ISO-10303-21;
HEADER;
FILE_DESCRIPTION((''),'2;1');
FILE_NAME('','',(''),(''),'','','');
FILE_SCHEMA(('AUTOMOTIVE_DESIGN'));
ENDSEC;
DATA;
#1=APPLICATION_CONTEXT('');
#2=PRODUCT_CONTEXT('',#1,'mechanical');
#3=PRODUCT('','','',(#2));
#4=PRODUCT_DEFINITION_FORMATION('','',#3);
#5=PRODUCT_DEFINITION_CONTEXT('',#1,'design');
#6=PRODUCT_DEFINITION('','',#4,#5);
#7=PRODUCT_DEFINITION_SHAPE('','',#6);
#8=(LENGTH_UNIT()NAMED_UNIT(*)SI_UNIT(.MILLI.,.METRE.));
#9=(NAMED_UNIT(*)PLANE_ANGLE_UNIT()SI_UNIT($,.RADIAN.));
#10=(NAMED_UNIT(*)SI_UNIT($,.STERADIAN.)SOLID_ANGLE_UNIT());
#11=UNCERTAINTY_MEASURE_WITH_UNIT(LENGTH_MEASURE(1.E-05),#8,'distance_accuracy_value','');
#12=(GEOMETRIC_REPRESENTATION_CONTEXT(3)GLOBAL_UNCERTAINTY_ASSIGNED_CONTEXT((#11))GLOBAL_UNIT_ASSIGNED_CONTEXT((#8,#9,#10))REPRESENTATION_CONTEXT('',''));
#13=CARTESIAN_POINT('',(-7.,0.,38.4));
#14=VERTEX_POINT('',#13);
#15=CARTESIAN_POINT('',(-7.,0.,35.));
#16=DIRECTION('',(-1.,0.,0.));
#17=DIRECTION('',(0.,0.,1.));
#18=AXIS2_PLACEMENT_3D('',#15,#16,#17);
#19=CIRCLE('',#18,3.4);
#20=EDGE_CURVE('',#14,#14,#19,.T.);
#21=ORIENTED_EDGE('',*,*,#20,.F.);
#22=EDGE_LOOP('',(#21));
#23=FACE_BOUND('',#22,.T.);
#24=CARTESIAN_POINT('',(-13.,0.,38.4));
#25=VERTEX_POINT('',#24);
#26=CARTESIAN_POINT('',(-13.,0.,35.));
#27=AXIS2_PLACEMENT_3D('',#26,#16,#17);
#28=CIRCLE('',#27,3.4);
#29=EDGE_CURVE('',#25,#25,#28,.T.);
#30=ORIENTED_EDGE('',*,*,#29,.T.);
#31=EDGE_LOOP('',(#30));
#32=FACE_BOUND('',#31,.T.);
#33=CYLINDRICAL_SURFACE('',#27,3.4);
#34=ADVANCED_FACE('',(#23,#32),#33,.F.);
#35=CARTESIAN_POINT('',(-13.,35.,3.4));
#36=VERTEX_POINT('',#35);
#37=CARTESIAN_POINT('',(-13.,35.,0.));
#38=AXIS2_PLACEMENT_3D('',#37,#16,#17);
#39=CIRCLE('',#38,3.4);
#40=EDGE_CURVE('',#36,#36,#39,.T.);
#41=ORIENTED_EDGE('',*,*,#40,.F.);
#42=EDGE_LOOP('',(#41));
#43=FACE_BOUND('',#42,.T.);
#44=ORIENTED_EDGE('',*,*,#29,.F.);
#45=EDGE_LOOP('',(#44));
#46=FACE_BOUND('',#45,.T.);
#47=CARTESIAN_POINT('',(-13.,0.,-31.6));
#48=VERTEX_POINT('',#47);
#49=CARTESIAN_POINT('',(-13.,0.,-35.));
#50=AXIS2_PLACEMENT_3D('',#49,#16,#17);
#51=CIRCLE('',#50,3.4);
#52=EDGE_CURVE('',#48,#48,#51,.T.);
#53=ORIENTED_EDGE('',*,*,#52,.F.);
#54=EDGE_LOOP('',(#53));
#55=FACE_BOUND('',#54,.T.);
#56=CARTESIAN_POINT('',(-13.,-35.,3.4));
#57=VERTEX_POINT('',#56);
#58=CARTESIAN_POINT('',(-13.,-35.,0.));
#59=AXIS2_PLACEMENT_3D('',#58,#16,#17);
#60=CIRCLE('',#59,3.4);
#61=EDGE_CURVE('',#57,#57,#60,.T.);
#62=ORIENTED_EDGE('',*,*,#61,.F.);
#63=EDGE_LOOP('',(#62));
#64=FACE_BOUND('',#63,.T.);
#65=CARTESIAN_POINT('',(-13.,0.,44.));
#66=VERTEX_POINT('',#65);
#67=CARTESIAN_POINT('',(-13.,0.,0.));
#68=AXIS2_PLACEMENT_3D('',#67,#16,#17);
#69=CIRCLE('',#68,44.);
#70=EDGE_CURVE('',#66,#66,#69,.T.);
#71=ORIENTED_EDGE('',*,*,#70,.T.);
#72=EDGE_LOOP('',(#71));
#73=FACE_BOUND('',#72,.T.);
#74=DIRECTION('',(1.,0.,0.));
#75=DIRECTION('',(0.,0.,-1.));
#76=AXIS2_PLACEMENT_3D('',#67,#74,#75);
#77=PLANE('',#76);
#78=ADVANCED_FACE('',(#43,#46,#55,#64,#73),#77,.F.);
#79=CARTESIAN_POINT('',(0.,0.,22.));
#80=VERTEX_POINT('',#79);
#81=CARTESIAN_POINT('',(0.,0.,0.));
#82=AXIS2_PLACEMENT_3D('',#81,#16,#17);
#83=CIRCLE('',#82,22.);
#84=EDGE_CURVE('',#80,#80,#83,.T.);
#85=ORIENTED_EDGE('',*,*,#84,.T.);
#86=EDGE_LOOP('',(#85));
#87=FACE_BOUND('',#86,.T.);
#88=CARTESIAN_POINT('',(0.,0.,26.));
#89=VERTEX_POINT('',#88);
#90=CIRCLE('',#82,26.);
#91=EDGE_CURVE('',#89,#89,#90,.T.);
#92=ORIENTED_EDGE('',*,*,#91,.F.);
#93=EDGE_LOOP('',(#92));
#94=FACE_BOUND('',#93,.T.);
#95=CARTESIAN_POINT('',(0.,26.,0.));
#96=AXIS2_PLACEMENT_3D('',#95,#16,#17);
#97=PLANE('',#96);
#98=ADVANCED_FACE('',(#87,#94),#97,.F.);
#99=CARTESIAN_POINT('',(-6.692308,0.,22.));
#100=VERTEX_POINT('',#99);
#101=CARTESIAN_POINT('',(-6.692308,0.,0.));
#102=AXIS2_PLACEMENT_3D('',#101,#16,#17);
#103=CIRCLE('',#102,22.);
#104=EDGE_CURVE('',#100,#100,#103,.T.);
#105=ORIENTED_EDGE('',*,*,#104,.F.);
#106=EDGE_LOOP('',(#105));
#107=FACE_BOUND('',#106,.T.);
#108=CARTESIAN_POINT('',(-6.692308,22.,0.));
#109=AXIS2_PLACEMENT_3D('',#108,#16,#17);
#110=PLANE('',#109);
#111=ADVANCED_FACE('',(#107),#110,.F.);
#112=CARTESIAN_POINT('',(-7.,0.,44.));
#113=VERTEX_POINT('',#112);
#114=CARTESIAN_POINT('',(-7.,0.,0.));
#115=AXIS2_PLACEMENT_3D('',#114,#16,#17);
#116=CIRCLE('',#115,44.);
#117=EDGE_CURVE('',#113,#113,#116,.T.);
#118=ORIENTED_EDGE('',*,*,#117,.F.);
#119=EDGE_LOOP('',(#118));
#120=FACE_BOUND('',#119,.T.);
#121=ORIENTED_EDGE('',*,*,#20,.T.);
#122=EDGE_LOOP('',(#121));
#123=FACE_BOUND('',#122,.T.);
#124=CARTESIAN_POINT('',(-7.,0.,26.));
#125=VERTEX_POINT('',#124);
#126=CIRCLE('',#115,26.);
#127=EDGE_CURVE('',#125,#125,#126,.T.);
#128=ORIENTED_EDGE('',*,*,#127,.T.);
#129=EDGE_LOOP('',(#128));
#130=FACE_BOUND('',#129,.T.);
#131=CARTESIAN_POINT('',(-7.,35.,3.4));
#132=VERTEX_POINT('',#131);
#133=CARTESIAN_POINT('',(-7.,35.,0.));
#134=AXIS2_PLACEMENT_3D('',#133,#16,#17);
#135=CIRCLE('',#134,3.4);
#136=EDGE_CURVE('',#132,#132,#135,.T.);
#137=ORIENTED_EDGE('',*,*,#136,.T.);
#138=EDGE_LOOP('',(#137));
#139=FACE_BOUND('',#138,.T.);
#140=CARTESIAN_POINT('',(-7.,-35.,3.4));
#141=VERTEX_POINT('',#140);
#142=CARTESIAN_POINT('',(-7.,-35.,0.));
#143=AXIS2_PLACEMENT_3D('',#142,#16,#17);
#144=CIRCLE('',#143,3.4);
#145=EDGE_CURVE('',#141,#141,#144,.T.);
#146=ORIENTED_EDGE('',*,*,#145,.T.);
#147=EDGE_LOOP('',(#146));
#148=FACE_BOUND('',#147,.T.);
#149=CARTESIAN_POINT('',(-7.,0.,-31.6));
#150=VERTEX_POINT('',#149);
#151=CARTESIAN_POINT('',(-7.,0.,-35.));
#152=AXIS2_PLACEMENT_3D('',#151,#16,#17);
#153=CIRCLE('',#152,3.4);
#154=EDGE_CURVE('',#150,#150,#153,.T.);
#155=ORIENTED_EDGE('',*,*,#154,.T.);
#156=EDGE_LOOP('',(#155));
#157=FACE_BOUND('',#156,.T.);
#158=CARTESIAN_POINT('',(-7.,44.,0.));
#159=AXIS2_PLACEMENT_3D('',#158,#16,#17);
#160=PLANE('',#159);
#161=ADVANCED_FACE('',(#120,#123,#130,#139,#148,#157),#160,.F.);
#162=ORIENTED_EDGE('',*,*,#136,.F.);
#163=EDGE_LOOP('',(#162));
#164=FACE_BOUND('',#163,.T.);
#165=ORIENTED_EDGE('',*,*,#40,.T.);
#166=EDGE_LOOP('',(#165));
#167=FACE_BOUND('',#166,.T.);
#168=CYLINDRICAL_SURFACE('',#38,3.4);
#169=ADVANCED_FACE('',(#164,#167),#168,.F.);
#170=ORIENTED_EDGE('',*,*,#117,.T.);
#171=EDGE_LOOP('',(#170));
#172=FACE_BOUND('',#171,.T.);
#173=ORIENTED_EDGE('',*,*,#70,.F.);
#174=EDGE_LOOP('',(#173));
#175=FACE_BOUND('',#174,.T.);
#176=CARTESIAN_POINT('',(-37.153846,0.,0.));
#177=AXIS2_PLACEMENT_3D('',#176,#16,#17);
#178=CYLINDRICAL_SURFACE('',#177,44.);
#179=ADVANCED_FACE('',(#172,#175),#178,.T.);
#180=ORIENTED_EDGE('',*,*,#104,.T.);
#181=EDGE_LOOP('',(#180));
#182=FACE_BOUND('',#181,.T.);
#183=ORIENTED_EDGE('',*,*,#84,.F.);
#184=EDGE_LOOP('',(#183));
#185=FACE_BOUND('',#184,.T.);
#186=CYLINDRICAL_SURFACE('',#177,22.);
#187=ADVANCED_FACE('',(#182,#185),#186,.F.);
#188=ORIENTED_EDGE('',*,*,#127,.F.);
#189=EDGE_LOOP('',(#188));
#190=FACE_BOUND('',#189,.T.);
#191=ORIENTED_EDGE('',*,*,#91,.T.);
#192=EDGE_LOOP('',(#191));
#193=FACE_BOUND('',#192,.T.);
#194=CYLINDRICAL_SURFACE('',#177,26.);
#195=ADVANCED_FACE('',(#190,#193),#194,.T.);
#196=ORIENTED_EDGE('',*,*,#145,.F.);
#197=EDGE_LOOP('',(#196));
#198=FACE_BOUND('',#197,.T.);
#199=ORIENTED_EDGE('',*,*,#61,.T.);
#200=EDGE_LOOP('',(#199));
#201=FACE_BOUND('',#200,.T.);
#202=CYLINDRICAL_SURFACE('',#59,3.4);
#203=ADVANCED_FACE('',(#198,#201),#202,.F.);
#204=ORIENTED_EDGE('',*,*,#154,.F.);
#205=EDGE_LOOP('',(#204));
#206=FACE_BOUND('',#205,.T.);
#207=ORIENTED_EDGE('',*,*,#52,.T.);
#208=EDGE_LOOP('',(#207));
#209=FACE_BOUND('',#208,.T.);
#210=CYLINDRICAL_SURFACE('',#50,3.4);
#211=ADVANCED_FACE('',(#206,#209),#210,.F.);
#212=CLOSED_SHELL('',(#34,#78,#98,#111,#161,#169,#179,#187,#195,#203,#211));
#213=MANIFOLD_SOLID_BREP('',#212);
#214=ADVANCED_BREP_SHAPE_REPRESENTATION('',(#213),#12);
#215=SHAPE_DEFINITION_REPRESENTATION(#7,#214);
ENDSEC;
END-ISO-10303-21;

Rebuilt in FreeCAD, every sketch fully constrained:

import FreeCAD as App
import Part
import Sketcher
from FreeCAD import Vector
Q = App.Units.Quantity


def add_polygon(sketch, points):
    """Adds a closed chain of lines whose ends are joined by coincident constraints."""
    first, n = sketch.GeometryCount, len(points)
    for a, b in zip(points, points[1:] + points[:1]):
        sketch.addGeometry(Part.LineSegment(App.Vector(*a, 0), App.Vector(*b, 0)), False)
    for i in range(n):
        sketch.addConstraint(Sketcher.Constraint("Coincident", first + i, 2, first + (i + 1) % n, 1))

doc = App.newDocument("Part")
body = doc.addObject("PartDesign::Body", "Body")

# Sketch on XY plane
sketch1 = doc.addObject("Sketcher::SketchObject", "Sketch")
body.addObject(sketch1)
sketch1.AttachmentSupport = (doc.XY_Plane, [""])
sketch1.MapMode = "FlatFace"
add_polygon(sketch1, [(-13, 44), (-13, 0), (-6.7, 0), (-6.7, 22), (0, 22), (0, 26), (-7, 26), (-7, 44)])  # lines 0-7
sketch1.addConstraint([
    Sketcher.Constraint("Vertical", 0),
    Sketcher.Constraint("Horizontal", 1),
    Sketcher.Constraint("Vertical", 2),
    Sketcher.Constraint("Horizontal", 3),
    Sketcher.Constraint("Vertical", 4),
    Sketcher.Constraint("Horizontal", 5),
    Sketcher.Constraint("Vertical", 6),
    Sketcher.Constraint("Horizontal", 7),
    Sketcher.Constraint("PointOnObject", 0, 2, -1),
    Sketcher.Constraint("PointOnObject", 3, 2, -2),
    Sketcher.Constraint("DistanceX", 5, 2, 5, 1, Q("7 mm")),
    Sketcher.Constraint("DistanceX", 7, 2, 7, 1, Q("6 mm")),
    Sketcher.Constraint("DistanceY", 0, 2, 0, 1, Q("44 mm")),
    Sketcher.Constraint("DistanceY", 2, 1, 2, 2, Q("22 mm")),
    Sketcher.Constraint("DistanceY", 4, 1, 4, 2, Q("4 mm")),
    Sketcher.Constraint("DistanceX", 1, 1, 1, 2, Q("6.307692 mm")),
])
revolution = doc.addObject("PartDesign::Revolution", "Revolution")
body.addObject(revolution)
revolution.Profile = sketch1
revolution.ReferenceAxis = (sketch1, ["H_Axis"])
revolution.Angle = 360

# Sketch on YZ plane
sketch2 = doc.addObject("Sketcher::SketchObject", "Sketch001")
body.addObject(sketch2)
sketch2.AttachmentSupport = (doc.YZ_Plane, [""])
sketch2.MapMode = "FlatFace"
sketch2.AttachmentOffset = App.Placement(Vector(0, 0, -13), App.Rotation())
sketch2.addGeometry([
    Part.Circle(Vector(0, -35, 0), Vector(0, 0, 1), 3.4),
    Part.Circle(Vector(-35, 0, 0), Vector(0, 0, 1), 3.4),
    Part.Circle(Vector(0, 35, 0), Vector(0, 0, 1), 3.4),
    Part.Circle(Vector(35, 0, 0), Vector(0, 0, 1), 3.4),
], False)
sketch2.addConstraint([
    Sketcher.Constraint("Equal", 0, 1),
    Sketcher.Constraint("Equal", 1, 2),
    Sketcher.Constraint("Equal", 2, 3),
    Sketcher.Constraint("Symmetric", 0, 3, 2, 3, -1, 1),
    Sketcher.Constraint("Symmetric", 1, 3, 3, 3, -1, 1),
    Sketcher.Constraint("PointOnObject", 0, 3, -2),
    Sketcher.Constraint("PointOnObject", 1, 3, -1),
    Sketcher.Constraint("Diameter", 0, Q("6.8 mm")),
    Sketcher.Constraint("DistanceY", 0, 3, -1, 1, Q("35 mm")),
    Sketcher.Constraint("DistanceX", 1, 3, -1, 1, Q("35 mm")),
])
doc.recompute()
hole = doc.addObject("PartDesign::Hole", "Hole")
body.addObject(hole)
hole.Profile = sketch2
hole.ThreadType = "None"
hole.Diameter = 6.8
hole.DepthType = "Dimension"
hole.Depth = 16
hole.DrillPoint = "Angled"
hole.DrillPointAngle = 118
hole.Reversed = True

doc.recompute()
